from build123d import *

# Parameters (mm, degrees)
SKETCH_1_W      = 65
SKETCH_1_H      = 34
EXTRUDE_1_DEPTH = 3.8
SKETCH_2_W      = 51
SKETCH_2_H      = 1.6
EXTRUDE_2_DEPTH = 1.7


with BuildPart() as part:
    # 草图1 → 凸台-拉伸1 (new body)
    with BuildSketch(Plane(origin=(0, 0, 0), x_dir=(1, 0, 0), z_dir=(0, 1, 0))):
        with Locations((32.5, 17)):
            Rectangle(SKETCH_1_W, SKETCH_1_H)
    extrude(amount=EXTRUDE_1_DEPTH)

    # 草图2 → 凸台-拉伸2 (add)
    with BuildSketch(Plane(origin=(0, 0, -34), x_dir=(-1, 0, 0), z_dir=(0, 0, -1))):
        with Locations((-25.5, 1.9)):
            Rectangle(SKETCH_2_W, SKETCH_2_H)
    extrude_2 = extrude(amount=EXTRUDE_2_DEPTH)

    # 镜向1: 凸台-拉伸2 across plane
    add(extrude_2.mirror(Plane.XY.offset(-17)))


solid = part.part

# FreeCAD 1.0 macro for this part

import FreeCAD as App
import Part
import Sketcher
from FreeCAD import Vector


def add_polygon(sketch, points):
    """Adds a closed chain of lines whose ends are joined by coincident constraints."""
    first, n = sketch.GeometryCount, len(points)
    for a, b in zip(points, points[1:] + points[:1]):
        sketch.addGeometry(Part.LineSegment(App.Vector(*a, 0), App.Vector(*b, 0)), False)
    for i in range(n):
        sketch.addConstraint(Sketcher.Constraint("Coincident", first + i, 2, first + (i + 1) % n, 1))

doc = App.newDocument("Part")
body = doc.addObject("PartDesign::Body", "Body")

sketch1 = body.newObject("Sketcher::SketchObject", "Sketch")
sketch1.AttachmentSupport = (doc.getObject("XZ_Plane"), [""])
sketch1.MapMode = "FlatFace"
add_polygon(sketch1, [(0, -34), (0, 0), (65, 0), (65, -34)])
sketch1.addConstraint(Sketcher.Constraint("Vertical", 0))
sketch1.addConstraint(Sketcher.Constraint("Horizontal", 1))
sketch1.addConstraint(Sketcher.Constraint("Vertical", 2))
sketch1.addConstraint(Sketcher.Constraint("Horizontal", 3))
sketch1.addConstraint(Sketcher.Constraint("Coincident", 0, 2, -1, 1))
sketch1.addConstraint(Sketcher.Constraint("DistanceX", 1, 1, 1, 2, 65.0))
sketch1.addConstraint(Sketcher.Constraint("DistanceY", 0, 1, 0, 2, 34.0))
pad1 = body.newObject("PartDesign::Pad", "Pad")
pad1.Profile = sketch1
pad1.Length = 3.8
pad1.Reversed = True

sketch2 = body.newObject("Sketcher::SketchObject", "Sketch001")
sketch2.AttachmentSupport = (doc.getObject("XY_Plane"), [""])
sketch2.MapMode = "FlatFace"
sketch2.AttachmentOffset = App.Placement(Vector(0, 0, -34), App.Rotation())
add_polygon(sketch2, [(51, 2.7), (51, 1.1), (0, 1.1), (0, 2.7)])
sketch2.addConstraint(Sketcher.Constraint("Vertical", 0))
sketch2.addConstraint(Sketcher.Constraint("Horizontal", 1))
sketch2.addConstraint(Sketcher.Constraint("Vertical", 2))
sketch2.addConstraint(Sketcher.Constraint("Horizontal", 3))
sketch2.addConstraint(Sketcher.Constraint("PointOnObject", 1, 2, -2))
sketch2.addConstraint(Sketcher.Constraint("DistanceX", 1, 2, 1, 1, 51.0))
sketch2.addConstraint(Sketcher.Constraint("DistanceY", 0, 2, 0, 1, 1.6))
sketch2.addConstraint(Sketcher.Constraint("DistanceY", -1, 1, 0, 2, 1.1))
pad2 = body.newObject("PartDesign::Pad", "Pad001")
pad2.Profile = sketch2
pad2.Length = 1.7
pad2.Reversed = True
doc.recompute()

datumplane = body.newObject("PartDesign::Plane", "DatumPlane")
datumplane.AttachmentSupport = (doc.getObject("XY_Plane"), [""])
datumplane.MapMode = "FlatFace"
datumplane.AttachmentOffset = App.Placement(Vector(0, 0, -17), App.Rotation())
mirrored = body.newObject("PartDesign::Mirrored", "Mirrored")
mirrored.Originals = [pad2]
mirrored.MirrorPlane = (datumplane, [""])
body.Tip = mirrored

doc.recompute()
